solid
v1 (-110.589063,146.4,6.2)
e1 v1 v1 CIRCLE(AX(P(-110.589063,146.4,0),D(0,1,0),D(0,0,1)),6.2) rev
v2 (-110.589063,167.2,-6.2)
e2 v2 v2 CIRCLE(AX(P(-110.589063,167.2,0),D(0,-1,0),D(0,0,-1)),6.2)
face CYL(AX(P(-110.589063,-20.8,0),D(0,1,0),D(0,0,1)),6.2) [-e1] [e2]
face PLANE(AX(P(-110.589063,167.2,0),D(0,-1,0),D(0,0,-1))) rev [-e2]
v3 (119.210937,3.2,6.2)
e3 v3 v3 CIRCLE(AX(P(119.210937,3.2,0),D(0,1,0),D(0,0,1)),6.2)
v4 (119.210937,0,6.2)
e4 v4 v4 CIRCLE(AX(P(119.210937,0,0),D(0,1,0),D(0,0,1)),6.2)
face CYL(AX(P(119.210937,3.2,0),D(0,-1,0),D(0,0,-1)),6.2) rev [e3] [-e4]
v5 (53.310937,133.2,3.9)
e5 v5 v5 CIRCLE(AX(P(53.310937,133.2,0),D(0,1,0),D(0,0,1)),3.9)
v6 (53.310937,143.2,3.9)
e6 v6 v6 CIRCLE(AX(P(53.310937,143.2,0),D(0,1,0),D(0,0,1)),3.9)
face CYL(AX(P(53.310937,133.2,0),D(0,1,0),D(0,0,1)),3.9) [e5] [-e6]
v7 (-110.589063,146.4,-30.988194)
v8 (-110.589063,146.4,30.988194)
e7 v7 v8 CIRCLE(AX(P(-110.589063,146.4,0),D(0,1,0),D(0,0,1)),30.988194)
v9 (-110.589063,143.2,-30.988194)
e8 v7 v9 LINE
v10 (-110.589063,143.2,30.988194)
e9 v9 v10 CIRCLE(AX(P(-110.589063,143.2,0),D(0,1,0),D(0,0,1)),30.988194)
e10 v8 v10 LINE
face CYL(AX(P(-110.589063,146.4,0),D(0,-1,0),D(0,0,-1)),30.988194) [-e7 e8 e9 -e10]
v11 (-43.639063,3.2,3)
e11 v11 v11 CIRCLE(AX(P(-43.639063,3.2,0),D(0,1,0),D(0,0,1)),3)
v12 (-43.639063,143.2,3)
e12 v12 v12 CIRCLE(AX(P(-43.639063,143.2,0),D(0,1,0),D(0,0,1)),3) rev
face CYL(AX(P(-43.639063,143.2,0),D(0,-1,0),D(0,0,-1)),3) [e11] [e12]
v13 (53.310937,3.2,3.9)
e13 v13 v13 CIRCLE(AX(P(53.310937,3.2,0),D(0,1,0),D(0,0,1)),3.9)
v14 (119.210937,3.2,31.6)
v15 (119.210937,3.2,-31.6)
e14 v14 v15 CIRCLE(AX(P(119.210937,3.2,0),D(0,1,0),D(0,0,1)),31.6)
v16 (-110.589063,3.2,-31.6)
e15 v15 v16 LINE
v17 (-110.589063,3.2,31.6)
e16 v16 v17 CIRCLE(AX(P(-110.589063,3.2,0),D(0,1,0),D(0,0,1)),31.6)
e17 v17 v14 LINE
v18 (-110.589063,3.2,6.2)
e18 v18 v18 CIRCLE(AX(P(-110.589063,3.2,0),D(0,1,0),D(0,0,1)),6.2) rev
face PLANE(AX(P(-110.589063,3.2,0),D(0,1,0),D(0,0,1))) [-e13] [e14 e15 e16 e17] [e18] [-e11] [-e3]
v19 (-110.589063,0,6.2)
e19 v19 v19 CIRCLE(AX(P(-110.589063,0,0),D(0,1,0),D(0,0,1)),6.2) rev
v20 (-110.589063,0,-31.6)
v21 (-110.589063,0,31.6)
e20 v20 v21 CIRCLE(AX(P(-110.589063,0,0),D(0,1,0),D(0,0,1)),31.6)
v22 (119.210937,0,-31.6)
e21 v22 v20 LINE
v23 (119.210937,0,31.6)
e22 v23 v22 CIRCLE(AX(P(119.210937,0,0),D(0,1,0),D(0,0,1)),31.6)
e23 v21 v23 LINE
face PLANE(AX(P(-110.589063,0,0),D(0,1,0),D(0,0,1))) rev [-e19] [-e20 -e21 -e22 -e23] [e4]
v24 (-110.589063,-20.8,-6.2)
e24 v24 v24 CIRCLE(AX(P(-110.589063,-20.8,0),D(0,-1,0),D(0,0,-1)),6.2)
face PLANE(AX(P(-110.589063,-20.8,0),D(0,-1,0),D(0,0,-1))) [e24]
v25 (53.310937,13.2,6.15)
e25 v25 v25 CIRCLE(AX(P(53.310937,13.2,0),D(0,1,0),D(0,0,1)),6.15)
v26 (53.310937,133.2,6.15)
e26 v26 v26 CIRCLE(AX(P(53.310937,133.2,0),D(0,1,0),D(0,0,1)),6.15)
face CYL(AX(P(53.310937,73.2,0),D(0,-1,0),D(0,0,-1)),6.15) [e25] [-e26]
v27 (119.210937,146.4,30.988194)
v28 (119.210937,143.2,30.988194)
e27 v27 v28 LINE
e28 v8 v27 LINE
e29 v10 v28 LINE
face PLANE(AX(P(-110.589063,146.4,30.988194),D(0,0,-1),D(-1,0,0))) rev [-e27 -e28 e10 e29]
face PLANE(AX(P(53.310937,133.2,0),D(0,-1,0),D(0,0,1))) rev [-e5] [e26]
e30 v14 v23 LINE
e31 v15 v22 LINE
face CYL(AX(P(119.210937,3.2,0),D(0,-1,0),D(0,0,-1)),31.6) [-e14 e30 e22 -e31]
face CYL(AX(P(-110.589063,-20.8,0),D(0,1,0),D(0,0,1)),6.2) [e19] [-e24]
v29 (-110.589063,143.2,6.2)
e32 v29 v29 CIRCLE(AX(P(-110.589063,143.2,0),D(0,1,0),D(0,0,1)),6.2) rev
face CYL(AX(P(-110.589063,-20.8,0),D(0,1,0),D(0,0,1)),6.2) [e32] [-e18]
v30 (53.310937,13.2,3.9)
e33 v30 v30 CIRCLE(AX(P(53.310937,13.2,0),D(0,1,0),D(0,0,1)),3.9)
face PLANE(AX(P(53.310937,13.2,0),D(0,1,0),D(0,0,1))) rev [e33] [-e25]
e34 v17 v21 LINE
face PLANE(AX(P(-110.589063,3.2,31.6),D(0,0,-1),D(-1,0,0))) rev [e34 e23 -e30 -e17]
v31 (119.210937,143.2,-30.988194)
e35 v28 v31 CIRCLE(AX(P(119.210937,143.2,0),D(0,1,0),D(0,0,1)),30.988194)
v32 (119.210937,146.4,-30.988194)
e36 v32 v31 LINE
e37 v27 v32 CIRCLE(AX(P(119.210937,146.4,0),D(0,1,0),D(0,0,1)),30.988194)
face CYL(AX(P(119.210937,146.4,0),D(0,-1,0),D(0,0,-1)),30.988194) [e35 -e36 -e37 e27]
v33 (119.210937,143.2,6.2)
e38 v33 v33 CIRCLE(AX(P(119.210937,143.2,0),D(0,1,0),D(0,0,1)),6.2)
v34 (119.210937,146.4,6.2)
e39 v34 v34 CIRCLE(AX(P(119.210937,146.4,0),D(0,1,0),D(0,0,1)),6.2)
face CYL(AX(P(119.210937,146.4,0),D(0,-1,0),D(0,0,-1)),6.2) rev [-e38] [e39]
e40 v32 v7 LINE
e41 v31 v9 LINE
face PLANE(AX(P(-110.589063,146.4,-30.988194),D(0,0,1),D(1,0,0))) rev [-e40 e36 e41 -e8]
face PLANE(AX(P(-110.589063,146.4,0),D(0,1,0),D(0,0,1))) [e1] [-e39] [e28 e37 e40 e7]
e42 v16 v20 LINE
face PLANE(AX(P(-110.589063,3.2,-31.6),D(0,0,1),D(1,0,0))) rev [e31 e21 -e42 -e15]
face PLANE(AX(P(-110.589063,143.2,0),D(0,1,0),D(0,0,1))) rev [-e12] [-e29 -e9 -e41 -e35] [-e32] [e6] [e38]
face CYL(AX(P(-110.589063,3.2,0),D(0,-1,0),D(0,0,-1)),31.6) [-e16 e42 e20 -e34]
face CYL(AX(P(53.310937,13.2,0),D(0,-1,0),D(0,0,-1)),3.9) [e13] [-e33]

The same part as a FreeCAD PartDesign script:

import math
import FreeCAD as App
import Part
import Sketcher

V = App.Vector
Q = App.Units.Quantity

doc = App.newDocument("Part")
body = doc.addObject("PartDesign::Body", "Body")

# Sketch on XZ plane
sketch1 = body.newObject("Sketcher::SketchObject", "Sketch")
sketch1.AttachmentSupport = (doc.getObject("XZ_Plane"), [""])
sketch1.MapMode = "FlatFace"
sketch1.addGeometry([
    Part.LineSegment(V(119, -32, 0), V(-111, -32, 0)),  # 0
    Part.ArcOfCircle(Part.Circle(V(-111, 0, 0), V(0, 0, 1), 32), math.radians(90), math.radians(270)),  # 1
    Part.LineSegment(V(-111, 32, 0), V(119, 32, 0)),  # 2
    Part.ArcOfCircle(Part.Circle(V(119, 0, 0), V(0, 0, 1), 32), math.radians(-90), math.radians(90)),  # 3
    Part.Circle(V(119, 0, 0), V(0, 0, 1), 6),  # 4
], False)
sketch1.addConstraint([
    Sketcher.Constraint("Tangent", 0, 2, 1, 2),
    Sketcher.Constraint("Tangent", 1, 1, 2, 1),
    Sketcher.Constraint("Tangent", 2, 2, 3, 2),
    Sketcher.Constraint("Tangent", 3, 1, 0, 1),
    Sketcher.Constraint("Horizontal", 0),
    Sketcher.Constraint("Horizontal", 2),
    Sketcher.Constraint("Coincident", 4, 3, 3, 3),
    Sketcher.Constraint("PointOnObject", 1, 3, -1),
    Sketcher.Constraint("Diameter", 4, Q("12.4 mm")),
    Sketcher.Constraint("Radius", 1, Q("31.6 mm")),
    Sketcher.Constraint("DistanceX", 0, 2, 0, 1, Q("229.8 mm")),
    Sketcher.Constraint("DistanceX", 1, 3, -1, 1, Q("110.589063 mm")),
])
pad1 = body.newObject("PartDesign::Pad", "Pad")
pad1.Profile = sketch1
pad1.Length = 3.2
pad1.Reversed = True

# Sketch on XZ plane
sketch2 = body.newObject("Sketcher::SketchObject", "Sketch001")
sketch2.AttachmentSupport = (doc.getObject("XZ_Plane"), [""])
sketch2.MapMode = "FlatFace"
sketch2.AttachmentOffset = App.Placement(V(0, 0, -3.2), App.Rotation())
sketch2.addGeometry(Part.Circle(V(-111, 0, 0), V(0, 0, 1), 6), False)
sketch2.addConstraint([
    Sketcher.Constraint("PointOnObject", 0, 3, -1),
    Sketcher.Constraint("Diameter", 0, Q("12.3 mm")),
    Sketcher.Constraint("DistanceX", 0, 3, -1, 1, Q("110.589063 mm")),
])
pad2 = body.newObject("PartDesign::Pad", "Pad001")
pad2.Profile = sketch2
pad2.Length = 140
pad2.Reversed = True

# Sketch on XZ plane
sketch3 = body.newObject("Sketcher::SketchObject", "Sketch002")
sketch3.AttachmentSupport = (doc.getObject("XZ_Plane"), [""])
sketch3.MapMode = "FlatFace"
sketch3.AttachmentOffset = App.Placement(V(0, 0, -143.2), App.Rotation())
sketch3.addGeometry([
    Part.LineSegment(V(119, -31, 0), V(-111, -31, 0)),  # 0
    Part.ArcOfCircle(Part.Circle(V(-111, 0, 0), V(0, 0, 1), 31), math.radians(90), math.radians(270)),  # 1
    Part.LineSegment(V(-111, 31, 0), V(119, 31, 0)),  # 2
    Part.ArcOfCircle(Part.Circle(V(119, 0, 0), V(0, 0, 1), 31), math.radians(-90), math.radians(90)),  # 3
    Part.Circle(V(119, 0, 0), V(0, 0, 1), 6),  # 4
], False)
sketch3.addConstraint([
    Sketcher.Constraint("Tangent", 0, 2, 1, 2),
    Sketcher.Constraint("Tangent", 1, 1, 2, 1),
    Sketcher.Constraint("Tangent", 2, 2, 3, 2),
    Sketcher.Constraint("Tangent", 3, 1, 0, 1),
    Sketcher.Constraint("Horizontal", 0),
    Sketcher.Constraint("Horizontal", 2),
    Sketcher.Constraint("Coincident", 4, 3, 3, 3),
    Sketcher.Constraint("PointOnObject", 1, 3, -1),
    Sketcher.Constraint("Diameter", 4, Q("12.4 mm")),
    Sketcher.Constraint("DistanceX", 0, 2, 0, 1, Q("229.8 mm")),
    Sketcher.Constraint("Radius", 1, Q("30.988194 mm")),
    Sketcher.Constraint("DistanceX", 1, 3, -1, 1, Q("110.589063 mm")),
])
pad3 = body.newObject("PartDesign::Pad", "Pad002")
pad3.Profile = sketch3
pad3.Length = 3.2
pad3.Reversed = True

# Sketch on XZ plane
sketch4 = body.newObject("Sketcher::SketchObject", "Sketch003")
sketch4.AttachmentSupport = (doc.getObject("XZ_Plane"), [""])
sketch4.MapMode = "FlatFace"
sketch4.AttachmentOffset = App.Placement(V(0, 0, -3.2), App.Rotation())
sketch4.addGeometry(Part.Circle(V(-43.6, 0, 0), V(0, 0, 1), 3), False)
sketch4.addConstraint([
    Sketcher.Constraint("PointOnObject", 0, 3, -1),
    Sketcher.Constraint("Diameter", 0, Q("6 mm")),
    Sketcher.Constraint("DistanceX", 0, 3, -1, 1, Q("43.639063 mm")),
])
pad4 = body.newObject("PartDesign::Pad", "Pad003")
pad4.Profile = sketch4
pad4.Length = 140
pad4.Reversed = True

# Sketch on XZ plane
sketch5 = body.newObject("Sketcher::SketchObject", "Sketch004")
sketch5.AttachmentSupport = (doc.getObject("XZ_Plane"), [""])
sketch5.MapMode = "FlatFace"
sketch5.AttachmentOffset = App.Placement(V(0, 0, -3.2), App.Rotation())
sketch5.addGeometry(Part.Circle(V(53.3, 0, 0), V(0, 0, 1), 3.9), False)
sketch5.addConstraint([
    Sketcher.Constraint("PointOnObject", 0, 3, -1),
    Sketcher.Constraint("Diameter", 0, Q("7.8 mm")),
    Sketcher.Constraint("DistanceX", -1, 1, 0, 3, Q("53.310937 mm")),
])
pad5 = body.newObject("PartDesign::Pad", "Pad004")
pad5.Profile = sketch5
pad5.Length = 10
pad5.Reversed = True

# Sketch on XZ plane
sketch6 = body.newObject("Sketcher::SketchObject", "Sketch005")
sketch6.AttachmentSupport = (doc.getObject("XZ_Plane"), [""])
sketch6.MapMode = "FlatFace"
sketch6.AttachmentOffset = App.Placement(V(0, 0, -13.2), App.Rotation())
sketch6.addGeometry(Part.Circle(V(53, 0, 0), V(0, 0, 1), 6), False)
sketch6.addConstraint([
    Sketcher.Constraint("PointOnObject", 0, 3, -1),
    Sketcher.Constraint("Diameter", 0, Q("12.3 mm")),
    Sketcher.Constraint("DistanceX", -1, 1, 0, 3, Q("53.310937 mm")),
])
pad6 = body.newObject("PartDesign::Pad", "Pad005")
pad6.Profile = sketch6
pad6.Length = 60
pad6.Reversed = True
doc.recompute()

datumplane = body.newObject("PartDesign::Plane", "DatumPlane")
datumplane.AttachmentSupport = (doc.getObject("XZ_Plane"), [""])
datumplane.MapMode = "FlatFace"
datumplane.AttachmentOffset = App.Placement(V(0, 0, -73.2), App.Rotation())
mirrored = body.newObject("PartDesign::Mirrored", "Mirrored")
mirrored.Originals = [pad5, pad6]
mirrored.MirrorPlane = (datumplane, [""])
body.Tip = mirrored

# Sketch on XZ plane
sketch7 = body.newObject("Sketcher::SketchObject", "Sketch006")
sketch7.AttachmentSupport = (doc.getObject("XZ_Plane"), [""])
sketch7.MapMode = "FlatFace"
sketch7.AttachmentOffset = App.Placement(V(0, 0, -73.2), App.Rotation())
sketch7.addGeometry(Part.Circle(V(-111, 0, 0), V(0, 0, 1), 6), False)
sketch7.addConstraint([
    Sketcher.Constraint("PointOnObject", 0, 3, -1),
    Sketcher.Constraint("Diameter", 0, Q("12.4 mm")),
    Sketcher.Constraint("DistanceX", 0, 3, -1, 1, Q("110.589063 mm")),
])
pad7 = body.newObject("PartDesign::Pad", "Pad006")
pad7.Profile = sketch7
pad7.Length = 188
pad7.Midplane = True

doc.recompute()
